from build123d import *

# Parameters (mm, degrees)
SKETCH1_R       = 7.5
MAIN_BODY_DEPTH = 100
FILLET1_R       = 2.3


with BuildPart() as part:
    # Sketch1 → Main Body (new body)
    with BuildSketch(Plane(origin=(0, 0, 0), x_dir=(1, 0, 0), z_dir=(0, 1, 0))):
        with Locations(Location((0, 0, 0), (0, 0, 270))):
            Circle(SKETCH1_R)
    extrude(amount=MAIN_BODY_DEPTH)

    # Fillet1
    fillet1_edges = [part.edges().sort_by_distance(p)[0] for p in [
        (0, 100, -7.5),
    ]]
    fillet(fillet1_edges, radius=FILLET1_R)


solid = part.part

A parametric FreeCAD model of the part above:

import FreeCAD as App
import Part
import Sketcher

V = App.Vector


def edges_at(feature, points):
    """Names of the edges that pass closest to the given points."""
    edges = feature.Shape.Edges
    near = lambda p: min(range(len(edges)), key=lambda i: edges[i].distToShape(Part.Vertex(*p))[0])
    return sorted({f"Edge{near(p) + 1}" for p in points})

doc = App.newDocument("Part")
params = doc.addObject("Spreadsheet::Sheet", "Params")
for row, (alias, value) in enumerate([
    ("sketch1_diameter", "15 mm"),
    ("pad1_length", "100 mm"),
    ("fillet_radius", "2.3 mm"),
], start=1):
    params.set(f"A{row}", alias)
    params.set(f"B{row}", "=" + value)
    params.setAlias(f"B{row}", alias)

body = doc.addObject("PartDesign::Body", "Body")

sketch1 = body.newObject("Sketcher::SketchObject", "Sketch")
sketch1.AttachmentSupport = (doc.getObject("XZ_Plane"), [""])
sketch1.MapMode = "FlatFace"
sketch1.addGeometry(Part.Circle(V(0, 0, 0), V(0, 0, 1), 8), False)
sketch1.addConstraint(Sketcher.Constraint("Coincident", 0, 3, -1, 1))
sketch1.addConstraint(Sketcher.Constraint("Diameter", 0, 15.0))
sketch1.setExpression("Constraints[1]", "Params.sketch1_diameter")
pad1 = body.newObject("PartDesign::Pad", "Pad")
pad1.Profile = sketch1
pad1.setExpression("Length", "Params.pad1_length")
pad1.Reversed = True
doc.recompute()

fillet = body.newObject("PartDesign::Fillet", "Fillet")
fillet.Base = (pad1, edges_at(pad1, [(0, 100, -7.5)]))
fillet.setExpression("Radius", "Params.fillet_radius")

doc.recompute()
